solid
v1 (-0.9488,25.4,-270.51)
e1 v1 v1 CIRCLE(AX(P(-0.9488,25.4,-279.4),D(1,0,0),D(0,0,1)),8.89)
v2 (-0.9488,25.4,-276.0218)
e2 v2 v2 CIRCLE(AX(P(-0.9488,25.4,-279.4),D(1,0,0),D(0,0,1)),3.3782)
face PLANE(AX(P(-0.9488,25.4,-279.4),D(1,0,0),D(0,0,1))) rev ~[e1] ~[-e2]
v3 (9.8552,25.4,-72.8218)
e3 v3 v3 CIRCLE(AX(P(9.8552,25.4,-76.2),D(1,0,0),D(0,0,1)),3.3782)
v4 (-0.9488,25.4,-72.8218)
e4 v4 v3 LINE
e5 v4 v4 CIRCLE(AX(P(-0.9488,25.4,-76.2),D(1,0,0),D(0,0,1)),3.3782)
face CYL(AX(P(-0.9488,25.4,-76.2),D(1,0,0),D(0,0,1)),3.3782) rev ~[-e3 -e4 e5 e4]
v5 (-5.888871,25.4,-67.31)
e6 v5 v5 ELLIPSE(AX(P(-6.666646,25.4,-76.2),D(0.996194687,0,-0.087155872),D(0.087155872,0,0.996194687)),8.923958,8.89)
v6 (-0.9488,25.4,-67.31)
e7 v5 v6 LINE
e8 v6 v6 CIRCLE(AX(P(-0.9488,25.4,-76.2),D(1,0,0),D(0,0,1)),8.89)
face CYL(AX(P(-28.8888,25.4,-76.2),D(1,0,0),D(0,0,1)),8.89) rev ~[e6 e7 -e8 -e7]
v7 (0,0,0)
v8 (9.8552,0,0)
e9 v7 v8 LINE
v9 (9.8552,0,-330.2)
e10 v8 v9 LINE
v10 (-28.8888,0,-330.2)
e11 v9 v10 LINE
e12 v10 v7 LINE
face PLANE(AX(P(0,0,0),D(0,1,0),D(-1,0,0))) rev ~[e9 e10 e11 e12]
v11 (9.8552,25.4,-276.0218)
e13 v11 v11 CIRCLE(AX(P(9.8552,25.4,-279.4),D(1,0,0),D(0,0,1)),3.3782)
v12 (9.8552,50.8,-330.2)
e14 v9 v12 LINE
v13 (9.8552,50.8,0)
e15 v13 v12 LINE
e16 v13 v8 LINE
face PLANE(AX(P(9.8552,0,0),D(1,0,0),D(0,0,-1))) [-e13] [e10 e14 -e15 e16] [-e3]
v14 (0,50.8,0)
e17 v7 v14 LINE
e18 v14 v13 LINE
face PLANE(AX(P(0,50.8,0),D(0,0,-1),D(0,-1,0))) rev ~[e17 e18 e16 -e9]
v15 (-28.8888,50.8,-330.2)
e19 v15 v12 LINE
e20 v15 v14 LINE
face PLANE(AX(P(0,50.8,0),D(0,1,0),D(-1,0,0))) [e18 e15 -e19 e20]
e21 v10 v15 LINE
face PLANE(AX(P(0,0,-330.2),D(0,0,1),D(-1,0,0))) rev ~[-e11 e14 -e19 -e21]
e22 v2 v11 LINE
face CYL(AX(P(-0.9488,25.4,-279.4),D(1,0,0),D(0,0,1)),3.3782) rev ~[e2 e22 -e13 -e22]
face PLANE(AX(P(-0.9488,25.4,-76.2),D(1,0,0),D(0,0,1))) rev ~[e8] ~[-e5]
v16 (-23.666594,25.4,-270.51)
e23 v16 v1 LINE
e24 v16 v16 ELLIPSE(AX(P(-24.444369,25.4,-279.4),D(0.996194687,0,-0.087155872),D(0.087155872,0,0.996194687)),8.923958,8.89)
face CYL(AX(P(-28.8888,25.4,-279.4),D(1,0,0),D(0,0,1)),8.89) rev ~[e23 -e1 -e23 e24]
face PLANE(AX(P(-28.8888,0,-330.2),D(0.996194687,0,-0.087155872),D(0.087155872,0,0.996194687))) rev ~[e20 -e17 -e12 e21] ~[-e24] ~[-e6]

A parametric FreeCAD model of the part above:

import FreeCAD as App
import Part
import Sketcher

V = App.Vector
Q = App.Units.Quantity

doc = App.newDocument("Part")
body = doc.addObject("PartDesign::Body", "Body")

# Sketch on XZ plane
sketch1 = body.newObject("Sketcher::SketchObject", "Sketch")
sketch1.AttachmentSupport = (doc.getObject("XZ_Plane"), [""])
sketch1.MapMode = "FlatFace"
sketch1.addGeometry([
    Part.LineSegment(V(-29, -330, 0), V(0, 0, 0)),
    Part.LineSegment(V(0, 0, 0), V(0, -330, 0)),
    Part.LineSegment(V(0, -330, 0), V(-29, -330, 0)),
], False)
sketch1.addConstraint([
    Sketcher.Constraint("Coincident", 0, 2, 1, 1),
    Sketcher.Constraint("Coincident", 1, 2, 2, 1),
    Sketcher.Constraint("Coincident", 2, 2, 0, 1),
    Sketcher.Constraint("Vertical", 1),
    Sketcher.Constraint("Horizontal", 2),
    Sketcher.Constraint("Coincident", 0, 2, -1, 1),
    Sketcher.Constraint("DistanceY", 1, 2, 1, 1, Q("13 in")),
    Sketcher.Constraint("Angle", 0, Q("85 deg")),
])
pad1 = body.newObject("PartDesign::Pad", "Pad")
pad1.Profile = sketch1
pad1.Length = Q("2 in")
pad1.Reversed = True

# Sketch on YZ plane
sketch2 = body.newObject("Sketcher::SketchObject", "Sketch001")
sketch2.AttachmentSupport = (doc.getObject("YZ_Plane"), [""])
sketch2.MapMode = "FlatFace"
sketch2.addGeometry([
    Part.LineSegment(V(51, 0, 0), V(0, 0, 0)),
    Part.LineSegment(V(0, 0, 0), V(0, -330, 0)),
    Part.LineSegment(V(0, -330, 0), V(51, -330, 0)),
    Part.LineSegment(V(51, -330, 0), V(51, 0, 0)),
], False)
sketch2.addConstraint([
    Sketcher.Constraint("Coincident", 0, 2, 1, 1),
    Sketcher.Constraint("Coincident", 1, 2, 2, 1),
    Sketcher.Constraint("Coincident", 2, 2, 3, 1),
    Sketcher.Constraint("Coincident", 3, 2, 0, 1),
    Sketcher.Constraint("Horizontal", 0),
    Sketcher.Constraint("Vertical", 1),
    Sketcher.Constraint("Horizontal", 2),
    Sketcher.Constraint("Vertical", 3),
    Sketcher.Constraint("Coincident", 0, 2, -1, 1),
    Sketcher.Constraint("DistanceX", 0, 2, 0, 1, Q("2 in")),
    Sketcher.Constraint("DistanceY", 1, 2, 1, 1, Q("13 in")),
])
pad2 = body.newObject("PartDesign::Pad", "Pad001")
pad2.Profile = sketch2
pad2.Length = Q("0.388 in")

# Sketch on YZ plane
sketch3 = body.newObject("Sketcher::SketchObject", "Sketch002")
sketch3.AttachmentSupport = (doc.getObject("YZ_Plane"), [""])
sketch3.MapMode = "FlatFace"
sketch3.AttachmentOffset = App.Placement(V(0, 0, -28.8888), App.Rotation())
sketch3.addGeometry([
    Part.Circle(V(25.4, -76.2, 0), V(0, 0, 1), 3.4),
    Part.Circle(V(25.4, -279.4, 0), V(0, 0, 1), 3.4),
], False)
sketch3.addConstraint([
    Sketcher.Constraint("Equal", 0, 1),
    Sketcher.Constraint("Vertical", 0, 3, 1, 3),
    Sketcher.Constraint("Diameter", 0, Q("0.266 in")),
    Sketcher.Constraint("DistanceX", -1, 1, 0, 3, Q("1 in")),
    Sketcher.Constraint("DistanceY", 0, 3, -1, 1, Q("3 in")),
    Sketcher.Constraint("DistanceY", 1, 3, -1, 1, Q("11 in")),
])
doc.recompute()
hole = body.newObject("PartDesign::Hole", "Hole")
hole.Profile = sketch3
hole.ThreadType = "None"
hole.Diameter = Q("0.266 in")
hole.DepthType = "ThroughAll"
hole.HoleCutType = "Counterbore"
hole.HoleCutDiameter = Q("0.7 in")
hole.HoleCutDepth = Q("1.1 in")
hole.Reversed = True

doc.recompute()
